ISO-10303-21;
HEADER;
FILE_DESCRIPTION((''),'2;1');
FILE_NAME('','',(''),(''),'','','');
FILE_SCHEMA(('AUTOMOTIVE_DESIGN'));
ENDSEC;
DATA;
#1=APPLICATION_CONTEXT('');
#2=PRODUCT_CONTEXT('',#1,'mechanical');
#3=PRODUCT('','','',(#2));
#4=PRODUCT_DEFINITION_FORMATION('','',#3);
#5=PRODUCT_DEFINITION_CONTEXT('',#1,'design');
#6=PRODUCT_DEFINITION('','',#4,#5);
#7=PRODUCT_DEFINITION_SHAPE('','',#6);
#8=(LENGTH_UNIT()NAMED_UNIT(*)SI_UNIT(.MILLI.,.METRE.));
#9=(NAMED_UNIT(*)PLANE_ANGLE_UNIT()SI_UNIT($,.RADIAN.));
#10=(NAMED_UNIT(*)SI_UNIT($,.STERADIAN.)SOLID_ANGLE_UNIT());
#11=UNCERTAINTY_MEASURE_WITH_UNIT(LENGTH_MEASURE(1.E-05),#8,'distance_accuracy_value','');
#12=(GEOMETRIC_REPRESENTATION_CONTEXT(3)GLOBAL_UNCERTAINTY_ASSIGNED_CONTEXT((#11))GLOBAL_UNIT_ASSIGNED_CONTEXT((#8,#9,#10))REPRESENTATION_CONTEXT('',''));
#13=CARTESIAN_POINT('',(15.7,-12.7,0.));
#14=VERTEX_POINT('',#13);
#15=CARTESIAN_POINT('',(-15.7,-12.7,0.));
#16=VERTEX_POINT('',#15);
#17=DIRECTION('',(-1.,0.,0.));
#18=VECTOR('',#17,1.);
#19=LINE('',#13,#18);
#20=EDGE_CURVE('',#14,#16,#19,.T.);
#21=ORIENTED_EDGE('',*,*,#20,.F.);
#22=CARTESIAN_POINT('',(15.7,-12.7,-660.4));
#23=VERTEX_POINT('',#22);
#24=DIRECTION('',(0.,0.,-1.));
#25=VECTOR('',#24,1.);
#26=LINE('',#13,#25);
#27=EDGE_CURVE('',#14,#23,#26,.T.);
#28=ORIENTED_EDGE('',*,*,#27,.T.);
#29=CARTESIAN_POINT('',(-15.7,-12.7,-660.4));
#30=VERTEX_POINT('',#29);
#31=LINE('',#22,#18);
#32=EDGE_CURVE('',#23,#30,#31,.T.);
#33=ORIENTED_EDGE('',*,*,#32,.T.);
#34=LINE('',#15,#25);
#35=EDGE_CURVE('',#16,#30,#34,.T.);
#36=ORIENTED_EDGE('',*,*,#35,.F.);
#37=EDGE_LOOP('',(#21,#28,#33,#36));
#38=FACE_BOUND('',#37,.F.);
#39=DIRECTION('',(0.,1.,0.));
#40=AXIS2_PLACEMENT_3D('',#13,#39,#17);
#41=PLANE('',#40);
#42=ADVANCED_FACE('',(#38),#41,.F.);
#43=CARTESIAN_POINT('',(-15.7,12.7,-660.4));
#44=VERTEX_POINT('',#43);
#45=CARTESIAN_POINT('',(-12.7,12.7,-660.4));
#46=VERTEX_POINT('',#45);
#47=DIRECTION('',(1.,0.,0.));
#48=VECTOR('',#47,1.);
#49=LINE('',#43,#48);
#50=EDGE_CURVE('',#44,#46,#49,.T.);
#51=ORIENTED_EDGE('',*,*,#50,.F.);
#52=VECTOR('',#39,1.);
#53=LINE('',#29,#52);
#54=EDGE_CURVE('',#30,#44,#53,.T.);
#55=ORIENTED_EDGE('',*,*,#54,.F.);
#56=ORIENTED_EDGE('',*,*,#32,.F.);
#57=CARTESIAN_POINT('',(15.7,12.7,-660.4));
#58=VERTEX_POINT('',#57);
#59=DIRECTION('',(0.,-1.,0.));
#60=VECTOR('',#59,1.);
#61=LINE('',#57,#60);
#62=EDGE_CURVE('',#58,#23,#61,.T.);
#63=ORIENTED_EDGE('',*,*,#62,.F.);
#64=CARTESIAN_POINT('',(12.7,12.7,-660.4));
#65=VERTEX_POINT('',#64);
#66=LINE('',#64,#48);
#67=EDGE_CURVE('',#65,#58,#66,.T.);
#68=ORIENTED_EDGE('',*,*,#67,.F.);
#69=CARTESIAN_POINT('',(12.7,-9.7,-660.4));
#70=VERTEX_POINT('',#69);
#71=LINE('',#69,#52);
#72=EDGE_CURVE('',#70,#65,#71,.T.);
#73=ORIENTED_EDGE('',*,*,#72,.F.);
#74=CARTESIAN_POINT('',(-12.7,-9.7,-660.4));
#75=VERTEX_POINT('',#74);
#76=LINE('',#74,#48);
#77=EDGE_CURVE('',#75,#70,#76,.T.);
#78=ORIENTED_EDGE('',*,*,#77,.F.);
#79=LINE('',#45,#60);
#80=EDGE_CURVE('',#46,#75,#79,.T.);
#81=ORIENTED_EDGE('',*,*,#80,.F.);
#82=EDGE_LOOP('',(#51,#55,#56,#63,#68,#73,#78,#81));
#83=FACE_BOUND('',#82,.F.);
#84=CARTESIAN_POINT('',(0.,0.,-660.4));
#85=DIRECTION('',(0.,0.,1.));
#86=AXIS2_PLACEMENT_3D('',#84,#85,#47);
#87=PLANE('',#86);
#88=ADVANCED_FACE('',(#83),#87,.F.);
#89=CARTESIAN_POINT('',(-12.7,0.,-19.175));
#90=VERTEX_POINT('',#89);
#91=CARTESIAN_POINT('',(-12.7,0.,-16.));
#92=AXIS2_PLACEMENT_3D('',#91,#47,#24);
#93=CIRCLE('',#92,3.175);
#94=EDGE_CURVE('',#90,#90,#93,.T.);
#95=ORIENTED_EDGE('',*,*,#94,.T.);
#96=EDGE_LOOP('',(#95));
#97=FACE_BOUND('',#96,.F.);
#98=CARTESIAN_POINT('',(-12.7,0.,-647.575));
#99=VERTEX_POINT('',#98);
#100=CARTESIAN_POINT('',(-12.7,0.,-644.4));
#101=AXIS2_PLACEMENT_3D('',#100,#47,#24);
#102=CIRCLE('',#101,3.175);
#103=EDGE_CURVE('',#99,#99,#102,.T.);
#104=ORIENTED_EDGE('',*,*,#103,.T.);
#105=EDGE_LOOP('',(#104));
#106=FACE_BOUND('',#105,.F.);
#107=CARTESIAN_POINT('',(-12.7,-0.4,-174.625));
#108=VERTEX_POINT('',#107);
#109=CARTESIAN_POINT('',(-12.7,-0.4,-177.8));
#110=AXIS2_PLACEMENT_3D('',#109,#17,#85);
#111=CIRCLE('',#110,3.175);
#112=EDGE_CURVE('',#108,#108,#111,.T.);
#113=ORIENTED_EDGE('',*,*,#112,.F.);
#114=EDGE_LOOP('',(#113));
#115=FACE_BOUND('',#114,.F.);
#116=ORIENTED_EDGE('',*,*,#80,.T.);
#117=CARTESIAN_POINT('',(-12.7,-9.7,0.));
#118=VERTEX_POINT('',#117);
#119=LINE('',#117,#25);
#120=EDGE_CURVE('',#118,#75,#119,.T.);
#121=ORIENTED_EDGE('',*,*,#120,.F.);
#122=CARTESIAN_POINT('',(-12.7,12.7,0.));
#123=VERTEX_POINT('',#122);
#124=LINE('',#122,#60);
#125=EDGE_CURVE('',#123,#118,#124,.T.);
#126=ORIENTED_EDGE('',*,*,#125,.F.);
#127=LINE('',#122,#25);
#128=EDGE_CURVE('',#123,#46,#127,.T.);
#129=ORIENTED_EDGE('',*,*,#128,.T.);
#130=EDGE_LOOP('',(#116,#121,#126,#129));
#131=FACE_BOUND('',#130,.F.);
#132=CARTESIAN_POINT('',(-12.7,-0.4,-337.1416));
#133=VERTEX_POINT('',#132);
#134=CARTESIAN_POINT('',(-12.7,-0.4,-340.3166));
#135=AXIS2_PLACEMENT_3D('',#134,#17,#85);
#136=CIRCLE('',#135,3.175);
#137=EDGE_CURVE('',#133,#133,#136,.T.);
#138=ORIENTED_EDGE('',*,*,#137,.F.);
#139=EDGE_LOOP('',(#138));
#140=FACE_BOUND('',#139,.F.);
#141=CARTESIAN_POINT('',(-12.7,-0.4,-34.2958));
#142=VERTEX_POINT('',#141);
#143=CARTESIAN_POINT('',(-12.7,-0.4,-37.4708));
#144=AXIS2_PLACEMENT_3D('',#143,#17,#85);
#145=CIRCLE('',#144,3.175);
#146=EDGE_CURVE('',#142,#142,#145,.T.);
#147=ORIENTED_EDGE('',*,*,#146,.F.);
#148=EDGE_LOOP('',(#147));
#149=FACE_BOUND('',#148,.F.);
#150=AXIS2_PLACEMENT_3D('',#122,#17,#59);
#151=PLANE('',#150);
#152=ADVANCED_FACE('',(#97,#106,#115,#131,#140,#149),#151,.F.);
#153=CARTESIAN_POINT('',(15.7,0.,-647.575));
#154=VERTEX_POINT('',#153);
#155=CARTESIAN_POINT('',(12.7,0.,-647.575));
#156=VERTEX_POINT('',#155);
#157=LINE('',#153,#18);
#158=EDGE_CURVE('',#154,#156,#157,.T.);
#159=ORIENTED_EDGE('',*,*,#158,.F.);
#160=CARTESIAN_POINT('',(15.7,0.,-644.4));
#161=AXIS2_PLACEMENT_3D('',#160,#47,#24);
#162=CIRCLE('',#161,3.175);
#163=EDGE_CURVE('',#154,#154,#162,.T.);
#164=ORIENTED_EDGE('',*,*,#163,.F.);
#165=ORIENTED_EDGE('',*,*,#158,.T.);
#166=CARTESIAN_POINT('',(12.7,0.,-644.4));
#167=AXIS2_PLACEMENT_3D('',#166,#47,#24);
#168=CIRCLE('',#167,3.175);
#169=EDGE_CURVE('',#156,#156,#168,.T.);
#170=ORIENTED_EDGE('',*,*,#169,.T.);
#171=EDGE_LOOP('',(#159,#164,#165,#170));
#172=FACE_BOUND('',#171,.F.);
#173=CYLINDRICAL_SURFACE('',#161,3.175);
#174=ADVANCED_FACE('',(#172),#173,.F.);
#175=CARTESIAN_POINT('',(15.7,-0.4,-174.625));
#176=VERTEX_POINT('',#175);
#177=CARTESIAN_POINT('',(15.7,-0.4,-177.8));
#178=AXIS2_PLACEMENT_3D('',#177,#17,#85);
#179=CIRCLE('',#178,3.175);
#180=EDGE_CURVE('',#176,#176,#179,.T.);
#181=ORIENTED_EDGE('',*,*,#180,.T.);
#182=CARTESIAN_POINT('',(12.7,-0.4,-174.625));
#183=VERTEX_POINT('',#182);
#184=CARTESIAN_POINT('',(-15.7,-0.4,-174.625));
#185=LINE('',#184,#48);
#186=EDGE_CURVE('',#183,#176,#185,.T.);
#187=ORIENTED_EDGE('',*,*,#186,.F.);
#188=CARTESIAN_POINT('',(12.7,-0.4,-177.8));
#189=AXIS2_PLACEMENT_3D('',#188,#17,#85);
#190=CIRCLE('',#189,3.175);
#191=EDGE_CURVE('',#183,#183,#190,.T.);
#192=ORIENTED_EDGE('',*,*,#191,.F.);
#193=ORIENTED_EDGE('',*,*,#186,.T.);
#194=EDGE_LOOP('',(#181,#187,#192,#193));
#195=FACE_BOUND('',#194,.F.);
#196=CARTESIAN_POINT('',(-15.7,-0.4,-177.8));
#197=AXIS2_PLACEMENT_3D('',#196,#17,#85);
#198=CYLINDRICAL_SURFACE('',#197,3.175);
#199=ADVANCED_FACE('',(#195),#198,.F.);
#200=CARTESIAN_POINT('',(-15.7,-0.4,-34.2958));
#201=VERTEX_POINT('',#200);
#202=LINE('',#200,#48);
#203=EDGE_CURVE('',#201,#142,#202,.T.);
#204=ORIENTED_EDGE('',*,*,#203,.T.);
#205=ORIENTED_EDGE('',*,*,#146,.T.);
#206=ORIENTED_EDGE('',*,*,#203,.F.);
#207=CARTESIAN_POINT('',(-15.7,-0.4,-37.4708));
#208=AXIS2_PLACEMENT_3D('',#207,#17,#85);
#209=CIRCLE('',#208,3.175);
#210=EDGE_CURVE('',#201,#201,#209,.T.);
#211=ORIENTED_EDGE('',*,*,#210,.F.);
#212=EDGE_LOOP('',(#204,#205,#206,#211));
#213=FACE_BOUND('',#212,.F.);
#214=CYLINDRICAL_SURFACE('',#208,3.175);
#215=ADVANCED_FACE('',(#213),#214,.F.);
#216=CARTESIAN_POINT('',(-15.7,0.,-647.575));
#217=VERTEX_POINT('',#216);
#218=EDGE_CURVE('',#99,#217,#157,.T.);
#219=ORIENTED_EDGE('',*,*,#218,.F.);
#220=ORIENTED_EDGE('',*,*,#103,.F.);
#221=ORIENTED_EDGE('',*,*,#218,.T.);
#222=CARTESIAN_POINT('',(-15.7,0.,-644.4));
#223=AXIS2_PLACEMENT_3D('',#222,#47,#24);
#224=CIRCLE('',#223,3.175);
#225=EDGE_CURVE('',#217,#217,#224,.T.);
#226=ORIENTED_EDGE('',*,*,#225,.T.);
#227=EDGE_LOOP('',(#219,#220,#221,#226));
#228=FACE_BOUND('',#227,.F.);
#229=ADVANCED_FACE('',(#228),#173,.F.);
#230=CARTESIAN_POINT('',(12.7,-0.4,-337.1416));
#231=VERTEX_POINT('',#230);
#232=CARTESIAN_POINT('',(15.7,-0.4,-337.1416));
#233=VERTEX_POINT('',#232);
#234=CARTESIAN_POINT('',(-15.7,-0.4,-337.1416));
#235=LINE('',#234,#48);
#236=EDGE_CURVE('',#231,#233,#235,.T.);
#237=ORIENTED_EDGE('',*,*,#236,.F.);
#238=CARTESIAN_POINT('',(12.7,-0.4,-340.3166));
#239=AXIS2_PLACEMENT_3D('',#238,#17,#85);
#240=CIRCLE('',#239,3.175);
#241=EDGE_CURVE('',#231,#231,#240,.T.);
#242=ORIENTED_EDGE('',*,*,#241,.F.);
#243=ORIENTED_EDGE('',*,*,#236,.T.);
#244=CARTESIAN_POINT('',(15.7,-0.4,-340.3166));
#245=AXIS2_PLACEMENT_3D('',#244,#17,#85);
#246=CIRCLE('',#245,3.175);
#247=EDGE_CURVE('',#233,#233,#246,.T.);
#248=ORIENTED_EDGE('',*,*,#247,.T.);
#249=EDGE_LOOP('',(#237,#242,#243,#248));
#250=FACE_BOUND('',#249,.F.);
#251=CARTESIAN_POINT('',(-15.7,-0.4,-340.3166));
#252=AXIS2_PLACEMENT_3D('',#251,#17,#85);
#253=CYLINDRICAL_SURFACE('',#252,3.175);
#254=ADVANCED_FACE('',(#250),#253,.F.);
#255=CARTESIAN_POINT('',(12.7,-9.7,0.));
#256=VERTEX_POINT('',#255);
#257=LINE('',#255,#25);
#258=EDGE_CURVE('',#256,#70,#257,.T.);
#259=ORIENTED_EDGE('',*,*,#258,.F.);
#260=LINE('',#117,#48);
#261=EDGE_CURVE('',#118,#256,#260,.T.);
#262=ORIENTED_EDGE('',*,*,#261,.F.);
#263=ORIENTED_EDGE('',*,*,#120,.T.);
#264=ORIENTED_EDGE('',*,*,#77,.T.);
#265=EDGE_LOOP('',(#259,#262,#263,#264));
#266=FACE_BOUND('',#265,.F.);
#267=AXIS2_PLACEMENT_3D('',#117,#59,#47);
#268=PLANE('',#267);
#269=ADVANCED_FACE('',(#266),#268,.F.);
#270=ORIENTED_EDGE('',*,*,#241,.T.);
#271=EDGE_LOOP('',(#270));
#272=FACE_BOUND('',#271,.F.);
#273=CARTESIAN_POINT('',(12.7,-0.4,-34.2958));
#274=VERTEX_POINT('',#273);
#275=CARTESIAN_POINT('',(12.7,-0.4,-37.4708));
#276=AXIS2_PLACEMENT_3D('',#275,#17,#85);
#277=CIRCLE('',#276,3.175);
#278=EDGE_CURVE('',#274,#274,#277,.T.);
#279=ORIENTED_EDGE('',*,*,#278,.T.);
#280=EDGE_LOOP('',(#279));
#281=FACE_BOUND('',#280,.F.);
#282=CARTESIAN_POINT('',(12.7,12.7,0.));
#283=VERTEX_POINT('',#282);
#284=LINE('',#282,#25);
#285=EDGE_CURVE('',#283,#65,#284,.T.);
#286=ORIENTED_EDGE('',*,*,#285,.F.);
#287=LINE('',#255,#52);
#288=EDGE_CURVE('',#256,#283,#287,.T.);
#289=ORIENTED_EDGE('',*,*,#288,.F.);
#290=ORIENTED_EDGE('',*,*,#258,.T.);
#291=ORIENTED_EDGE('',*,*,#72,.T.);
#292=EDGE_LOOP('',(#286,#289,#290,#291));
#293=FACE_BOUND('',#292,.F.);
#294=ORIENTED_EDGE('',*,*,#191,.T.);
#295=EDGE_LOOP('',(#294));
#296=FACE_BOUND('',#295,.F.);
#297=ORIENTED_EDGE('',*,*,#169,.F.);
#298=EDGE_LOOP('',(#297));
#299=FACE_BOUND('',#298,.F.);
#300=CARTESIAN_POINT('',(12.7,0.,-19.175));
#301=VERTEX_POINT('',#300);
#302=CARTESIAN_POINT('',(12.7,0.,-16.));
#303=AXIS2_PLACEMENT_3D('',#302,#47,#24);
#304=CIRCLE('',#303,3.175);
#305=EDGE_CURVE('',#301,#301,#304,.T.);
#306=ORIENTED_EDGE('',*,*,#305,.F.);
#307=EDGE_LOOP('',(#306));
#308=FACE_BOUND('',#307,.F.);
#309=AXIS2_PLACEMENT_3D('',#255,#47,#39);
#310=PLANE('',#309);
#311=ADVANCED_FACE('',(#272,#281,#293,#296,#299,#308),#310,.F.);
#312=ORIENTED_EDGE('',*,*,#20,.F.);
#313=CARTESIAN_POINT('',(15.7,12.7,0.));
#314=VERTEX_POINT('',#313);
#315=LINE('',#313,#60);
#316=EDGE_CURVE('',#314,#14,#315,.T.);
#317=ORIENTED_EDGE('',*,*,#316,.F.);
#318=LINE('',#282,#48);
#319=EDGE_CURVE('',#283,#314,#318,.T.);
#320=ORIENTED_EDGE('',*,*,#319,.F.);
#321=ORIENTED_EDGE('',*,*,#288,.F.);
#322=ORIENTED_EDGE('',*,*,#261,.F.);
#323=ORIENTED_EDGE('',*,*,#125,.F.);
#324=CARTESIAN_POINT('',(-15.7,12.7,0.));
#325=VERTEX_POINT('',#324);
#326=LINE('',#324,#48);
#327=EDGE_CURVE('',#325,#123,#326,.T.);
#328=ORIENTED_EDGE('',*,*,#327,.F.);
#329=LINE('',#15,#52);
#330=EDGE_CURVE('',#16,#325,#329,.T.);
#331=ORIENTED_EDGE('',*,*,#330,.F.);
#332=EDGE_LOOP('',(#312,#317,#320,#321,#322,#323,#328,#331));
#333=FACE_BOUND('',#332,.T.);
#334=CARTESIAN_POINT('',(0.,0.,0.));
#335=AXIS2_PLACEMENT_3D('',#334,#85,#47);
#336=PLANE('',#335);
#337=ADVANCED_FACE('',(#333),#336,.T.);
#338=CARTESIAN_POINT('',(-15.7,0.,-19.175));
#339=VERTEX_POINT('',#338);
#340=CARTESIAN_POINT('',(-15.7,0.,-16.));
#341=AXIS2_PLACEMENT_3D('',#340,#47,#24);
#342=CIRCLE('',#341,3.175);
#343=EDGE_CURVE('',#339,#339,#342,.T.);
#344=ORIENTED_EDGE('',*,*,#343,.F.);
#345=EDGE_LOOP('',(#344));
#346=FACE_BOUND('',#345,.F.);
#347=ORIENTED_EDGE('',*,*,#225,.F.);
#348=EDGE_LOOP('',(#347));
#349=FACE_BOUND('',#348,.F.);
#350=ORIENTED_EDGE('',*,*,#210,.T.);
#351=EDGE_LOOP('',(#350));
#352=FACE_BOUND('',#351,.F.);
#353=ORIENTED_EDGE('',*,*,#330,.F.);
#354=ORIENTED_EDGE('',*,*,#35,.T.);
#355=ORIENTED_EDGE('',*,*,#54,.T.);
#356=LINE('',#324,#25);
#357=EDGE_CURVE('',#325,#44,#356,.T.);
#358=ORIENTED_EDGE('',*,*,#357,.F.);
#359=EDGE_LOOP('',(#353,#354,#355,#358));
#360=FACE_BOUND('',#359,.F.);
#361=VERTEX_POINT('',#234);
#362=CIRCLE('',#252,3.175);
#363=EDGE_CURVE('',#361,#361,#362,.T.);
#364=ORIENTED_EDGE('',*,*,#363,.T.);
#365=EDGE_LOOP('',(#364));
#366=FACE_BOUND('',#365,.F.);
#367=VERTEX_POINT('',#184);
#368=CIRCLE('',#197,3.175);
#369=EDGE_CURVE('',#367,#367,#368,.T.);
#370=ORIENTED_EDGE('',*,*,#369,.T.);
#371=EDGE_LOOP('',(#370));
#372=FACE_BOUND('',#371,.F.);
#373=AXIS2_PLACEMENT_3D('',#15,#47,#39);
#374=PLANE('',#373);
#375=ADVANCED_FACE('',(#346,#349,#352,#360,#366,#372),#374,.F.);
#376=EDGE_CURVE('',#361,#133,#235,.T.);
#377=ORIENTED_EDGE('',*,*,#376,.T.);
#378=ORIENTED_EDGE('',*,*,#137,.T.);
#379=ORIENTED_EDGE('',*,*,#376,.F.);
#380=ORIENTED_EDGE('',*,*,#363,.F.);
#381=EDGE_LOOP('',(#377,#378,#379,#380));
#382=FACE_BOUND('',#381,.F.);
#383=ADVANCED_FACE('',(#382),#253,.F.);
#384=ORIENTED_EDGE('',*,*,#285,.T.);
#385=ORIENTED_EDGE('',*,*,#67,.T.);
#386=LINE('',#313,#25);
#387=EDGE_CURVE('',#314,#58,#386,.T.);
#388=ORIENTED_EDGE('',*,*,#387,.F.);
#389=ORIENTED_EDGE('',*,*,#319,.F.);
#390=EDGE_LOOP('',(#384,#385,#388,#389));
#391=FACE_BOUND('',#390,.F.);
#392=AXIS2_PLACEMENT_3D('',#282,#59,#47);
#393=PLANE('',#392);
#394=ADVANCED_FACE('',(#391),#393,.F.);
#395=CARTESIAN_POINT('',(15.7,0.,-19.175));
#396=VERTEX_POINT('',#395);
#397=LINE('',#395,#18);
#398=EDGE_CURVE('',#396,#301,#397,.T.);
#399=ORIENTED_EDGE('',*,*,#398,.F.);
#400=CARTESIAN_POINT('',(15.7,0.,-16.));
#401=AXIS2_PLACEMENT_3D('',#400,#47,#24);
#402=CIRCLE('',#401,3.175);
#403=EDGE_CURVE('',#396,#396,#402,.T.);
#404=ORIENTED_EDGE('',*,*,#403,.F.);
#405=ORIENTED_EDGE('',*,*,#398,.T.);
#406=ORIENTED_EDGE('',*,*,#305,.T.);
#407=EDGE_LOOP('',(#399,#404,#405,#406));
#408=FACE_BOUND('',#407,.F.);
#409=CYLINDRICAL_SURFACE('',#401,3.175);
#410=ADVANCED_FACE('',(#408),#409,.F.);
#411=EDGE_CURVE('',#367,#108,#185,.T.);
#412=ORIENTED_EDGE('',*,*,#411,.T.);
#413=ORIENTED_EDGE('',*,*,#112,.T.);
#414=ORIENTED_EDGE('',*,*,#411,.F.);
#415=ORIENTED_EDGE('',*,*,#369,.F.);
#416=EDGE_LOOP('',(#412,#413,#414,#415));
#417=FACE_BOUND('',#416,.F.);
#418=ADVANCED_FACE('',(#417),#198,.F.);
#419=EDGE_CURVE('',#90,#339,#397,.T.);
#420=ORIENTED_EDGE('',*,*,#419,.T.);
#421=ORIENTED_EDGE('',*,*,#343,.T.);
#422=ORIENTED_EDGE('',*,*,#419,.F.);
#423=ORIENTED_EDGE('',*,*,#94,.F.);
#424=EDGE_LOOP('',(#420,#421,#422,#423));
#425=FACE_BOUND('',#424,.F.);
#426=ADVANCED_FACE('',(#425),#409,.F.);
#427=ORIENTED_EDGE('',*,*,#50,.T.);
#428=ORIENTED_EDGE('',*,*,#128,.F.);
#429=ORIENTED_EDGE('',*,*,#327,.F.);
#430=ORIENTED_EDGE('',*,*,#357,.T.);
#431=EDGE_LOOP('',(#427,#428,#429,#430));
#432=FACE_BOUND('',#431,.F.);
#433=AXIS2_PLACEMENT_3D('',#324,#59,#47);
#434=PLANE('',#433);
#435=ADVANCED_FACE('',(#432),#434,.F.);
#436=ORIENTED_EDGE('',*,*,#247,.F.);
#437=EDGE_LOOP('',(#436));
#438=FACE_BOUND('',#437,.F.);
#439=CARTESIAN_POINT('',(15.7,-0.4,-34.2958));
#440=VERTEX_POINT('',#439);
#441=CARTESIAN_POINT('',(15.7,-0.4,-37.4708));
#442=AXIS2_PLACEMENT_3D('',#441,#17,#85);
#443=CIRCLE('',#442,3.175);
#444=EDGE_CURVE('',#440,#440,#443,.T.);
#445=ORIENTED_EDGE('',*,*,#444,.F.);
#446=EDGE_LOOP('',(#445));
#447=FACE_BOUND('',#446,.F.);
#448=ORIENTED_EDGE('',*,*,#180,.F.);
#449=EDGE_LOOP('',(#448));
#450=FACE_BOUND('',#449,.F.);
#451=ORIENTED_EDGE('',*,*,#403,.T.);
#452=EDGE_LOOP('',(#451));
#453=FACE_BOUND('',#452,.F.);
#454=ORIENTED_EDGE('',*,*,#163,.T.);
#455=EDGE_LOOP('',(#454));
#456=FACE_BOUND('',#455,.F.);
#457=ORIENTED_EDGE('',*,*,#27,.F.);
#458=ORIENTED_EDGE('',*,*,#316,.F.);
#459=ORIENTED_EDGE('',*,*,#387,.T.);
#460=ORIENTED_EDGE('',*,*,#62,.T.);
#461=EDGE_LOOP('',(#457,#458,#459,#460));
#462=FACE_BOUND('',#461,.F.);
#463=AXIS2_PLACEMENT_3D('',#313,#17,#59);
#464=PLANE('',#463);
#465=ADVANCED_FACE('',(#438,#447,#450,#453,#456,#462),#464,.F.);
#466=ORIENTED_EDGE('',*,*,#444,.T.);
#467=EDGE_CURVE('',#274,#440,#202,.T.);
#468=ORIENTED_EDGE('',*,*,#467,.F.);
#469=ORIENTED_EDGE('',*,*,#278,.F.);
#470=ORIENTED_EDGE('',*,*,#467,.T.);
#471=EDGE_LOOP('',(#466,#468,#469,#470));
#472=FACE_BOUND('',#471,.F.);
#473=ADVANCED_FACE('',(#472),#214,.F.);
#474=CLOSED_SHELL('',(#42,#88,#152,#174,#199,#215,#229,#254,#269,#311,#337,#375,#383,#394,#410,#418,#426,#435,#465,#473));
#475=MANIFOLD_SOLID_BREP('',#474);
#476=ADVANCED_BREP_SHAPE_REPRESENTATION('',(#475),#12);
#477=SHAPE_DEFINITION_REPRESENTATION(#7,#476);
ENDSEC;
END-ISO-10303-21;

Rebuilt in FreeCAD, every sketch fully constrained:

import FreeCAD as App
import Part
import Sketcher
Q = App.Units.Quantity


def add_polygon(sketch, points):
    """Adds a closed chain of lines whose ends are joined by coincident constraints."""
    first, n = sketch.GeometryCount, len(points)
    for a, b in zip(points, points[1:] + points[:1]):
        sketch.addGeometry(Part.LineSegment(App.Vector(*a, 0), App.Vector(*b, 0)), False)
    for i in range(n):
        sketch.addConstraint(Sketcher.Constraint("Coincident", first + i, 2, first + (i + 1) % n, 1))

doc = App.newDocument("Part")
body = doc.addObject("PartDesign::Body", "Body")

# Sketch on XY plane
sketch1 = body.newObject("Sketcher::SketchObject", "Sketch")
sketch1.AttachmentSupport = (doc.getObject("XY_Plane"), [""])
sketch1.MapMode = "FlatFace"
add_polygon(sketch1, [(-12.7, 12.7), (-15.7, 12.7), (-15.7, -12.7), (15.7, -12.7), (15.7, 12.7), (12.7, 12.7), (12.7, -9.7), (-12.7, -9.7)])  # lines 0-7
sketch1.addConstraint(Sketcher.Constraint("Horizontal", 0))
sketch1.addConstraint(Sketcher.Constraint("Vertical", 1))
sketch1.addConstraint(Sketcher.Constraint("Horizontal", 2))
sketch1.addConstraint(Sketcher.Constraint("Vertical", 3))
sketch1.addConstraint(Sketcher.Constraint("Horizontal", 4))
sketch1.addConstraint(Sketcher.Constraint("Vertical", 5))
sketch1.addConstraint(Sketcher.Constraint("Horizontal", 6))
sketch1.addConstraint(Sketcher.Constraint("Vertical", 7))
sketch1.addConstraint(Sketcher.Constraint("Symmetric", 0, 2, 2, 2, -1, 1))
sketch1.addConstraint(Sketcher.Constraint("Symmetric", 4, 2, 7, 2, -2))
sketch1.addConstraint(Sketcher.Constraint("Equal", 6, 1))
sketch1.addConstraint(Sketcher.Constraint("DistanceX", 6, 2, 6, 1, Q("1 in")))
sketch1.addConstraint(Sketcher.Constraint("DistanceX", 0, 2, 0, 1, Q("0.1181 in")))
sketch1.addConstraint(Sketcher.Constraint("DistanceY", 2, 2, 5, 2, Q("0.1181 in")))
pad1 = body.newObject("PartDesign::Pad", "Pad")
pad1.Profile = sketch1
pad1.Length = Q("26 in")
pad1.Reversed = True

# Sketch on YZ plane
sketch2 = body.newObject("Sketcher::SketchObject", "Sketch001")
sketch2.AttachmentSupport = (doc.getObject("YZ_Plane"), [""])
sketch2.MapMode = "FlatFace"
sketch2.AttachmentOffset = App.Placement(App.Vector(0, 0, 0.6181102 * 25.4), App.Rotation())
sketch2.addGeometry(Part.Circle(App.Vector(0, -16, 0), App.Vector(0, 0, 1), 3.2), False)
sketch2.addGeometry(Part.Circle(App.Vector(0, -644.4, 0), App.Vector(0, 0, 1), 3.2), False)
sketch2.addConstraint(Sketcher.Constraint("Equal", 0, 1))
sketch2.addConstraint(Sketcher.Constraint("PointOnObject", 0, 3, -2))
sketch2.addConstraint(Sketcher.Constraint("PointOnObject", 1, 3, -2))
sketch2.addConstraint(Sketcher.Constraint("Diameter", 0, Q("0.25 in")))
sketch2.addConstraint(Sketcher.Constraint("DistanceY", 0, 3, -1, 1, 16.0))
sketch2.addConstraint(Sketcher.Constraint("DistanceY", 1, 3, -1, 1, 644.4))
pocket1 = body.newObject("PartDesign::Pocket", "Pocket")
pocket1.Profile = sketch2
pocket1.Length = Q("3 in")

# Sketch on YZ plane
sketch3 = body.newObject("Sketcher::SketchObject", "Sketch002")
sketch3.AttachmentSupport = (doc.getObject("YZ_Plane"), [""])
sketch3.MapMode = "FlatFace"
sketch3.AttachmentOffset = App.Placement(App.Vector(0, 0, -0.6181102 * 25.4), App.Rotation())
sketch3.addGeometry(Part.Circle(App.Vector(-0.4, -37.5, 0), App.Vector(0, 0, 1), 3.2), False)
sketch3.addGeometry(Part.Circle(App.Vector(-0.4, -177.8, 0), App.Vector(0, 0, 1), 3.2), False)
sketch3.addGeometry(Part.Circle(App.Vector(-0.4, -340.3, 0), App.Vector(0, 0, 1), 3.2), False)
sketch3.addConstraint(Sketcher.Constraint("Equal", 0, 1))
sketch3.addConstraint(Sketcher.Constraint("Equal", 1, 2))
sketch3.addConstraint(Sketcher.Constraint("Vertical", 0, 3, 1, 3))
sketch3.addConstraint(Sketcher.Constraint("Vertical", 1, 3, 2, 3))
sketch3.addConstraint(Sketcher.Constraint("Diameter", 0, Q("0.25 in")))
sketch3.addConstraint(Sketcher.Constraint("DistanceY", 1, 3, -1, 1, Q("7 in")))
sketch3.addConstraint(Sketcher.Constraint("DistanceY", 2, 3, -1, 1, Q("13.3983 in")))
sketch3.addConstraint(Sketcher.Constraint("DistanceX", 0, 3, -1, 1, 0.4))
sketch3.addConstraint(Sketcher.Constraint("DistanceY", 0, 3, -1, 1, 37.4708))
pocket2 = body.newObject("PartDesign::Pocket", "Pocket001")
pocket2.Profile = sketch3
pocket2.Length = Q("2 in")
pocket2.Reversed = True

doc.recompute()
